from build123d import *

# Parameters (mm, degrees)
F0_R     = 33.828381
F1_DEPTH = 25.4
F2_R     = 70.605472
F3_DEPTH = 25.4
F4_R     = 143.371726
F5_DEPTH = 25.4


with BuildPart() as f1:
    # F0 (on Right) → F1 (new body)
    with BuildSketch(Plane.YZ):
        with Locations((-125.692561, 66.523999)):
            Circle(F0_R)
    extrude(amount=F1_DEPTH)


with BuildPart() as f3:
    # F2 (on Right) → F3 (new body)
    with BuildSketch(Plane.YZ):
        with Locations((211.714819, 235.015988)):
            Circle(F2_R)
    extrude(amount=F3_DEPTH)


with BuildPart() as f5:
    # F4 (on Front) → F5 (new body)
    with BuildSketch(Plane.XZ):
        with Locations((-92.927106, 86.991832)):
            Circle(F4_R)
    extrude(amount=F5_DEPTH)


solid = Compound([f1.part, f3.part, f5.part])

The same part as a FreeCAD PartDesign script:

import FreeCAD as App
import Part
import Sketcher
from FreeCAD import Vector
Q = App.Units.Quantity

doc = App.newDocument("Part")
body = doc.addObject("PartDesign::Body", "Body")

sketch1 = body.newObject("Sketcher::SketchObject", "Sketch")
sketch1.AttachmentSupport = (doc.getObject("YZ_Plane"), [""])
sketch1.MapMode = "FlatFace"
sketch1.addGeometry(Part.Circle(Vector(-126, 67, 0), Vector(0, 0, 1), 34), False)
sketch1.addConstraint([
    Sketcher.Constraint("Diameter", 0, 67.656762),
    Sketcher.Constraint("DistanceY", -1, 1, 0, 3, 66.523999),
    Sketcher.Constraint("DistanceX", 0, 3, -1, 1, 125.692561),
])
pad1 = body.newObject("PartDesign::Pad", "Pad")
pad1.Profile = sketch1
pad1.Length = Q("1 in")
body2 = doc.addObject("PartDesign::Body", "Body001")

sketch2 = body2.newObject("Sketcher::SketchObject", "Sketch001")
sketch2.AttachmentSupport = (doc.getObject("YZ_Plane001"), [""])
sketch2.MapMode = "FlatFace"
sketch2.addGeometry(Part.Circle(Vector(212, 235, 0), Vector(0, 0, 1), 71), False)
sketch2.addConstraint([
    Sketcher.Constraint("Diameter", 0, 141.210944),
    Sketcher.Constraint("DistanceX", -1, 1, 0, 3, 211.714819),
    Sketcher.Constraint("DistanceY", -1, 1, 0, 3, 235.015988),
])
pad2 = body2.newObject("PartDesign::Pad", "Pad001")
pad2.Profile = sketch2
pad2.Length = Q("1 in")
body3 = doc.addObject("PartDesign::Body", "Body002")

sketch3 = body3.newObject("Sketcher::SketchObject", "Sketch002")
sketch3.AttachmentSupport = (doc.getObject("XZ_Plane002"), [""])
sketch3.MapMode = "FlatFace"
sketch3.addGeometry(Part.Circle(Vector(-93, 87, 0), Vector(0, 0, 1), 143), False)
sketch3.addConstraint([
    Sketcher.Constraint("Diameter", 0, 286.743452),
    Sketcher.Constraint("DistanceX", 0, 3, -1, 1, 92.927106),
    Sketcher.Constraint("DistanceY", -1, 1, 0, 3, 86.991832),
])
pad3 = body3.newObject("PartDesign::Pad", "Pad002")
pad3.Profile = sketch3
pad3.Length = Q("1 in")

doc.recompute()
